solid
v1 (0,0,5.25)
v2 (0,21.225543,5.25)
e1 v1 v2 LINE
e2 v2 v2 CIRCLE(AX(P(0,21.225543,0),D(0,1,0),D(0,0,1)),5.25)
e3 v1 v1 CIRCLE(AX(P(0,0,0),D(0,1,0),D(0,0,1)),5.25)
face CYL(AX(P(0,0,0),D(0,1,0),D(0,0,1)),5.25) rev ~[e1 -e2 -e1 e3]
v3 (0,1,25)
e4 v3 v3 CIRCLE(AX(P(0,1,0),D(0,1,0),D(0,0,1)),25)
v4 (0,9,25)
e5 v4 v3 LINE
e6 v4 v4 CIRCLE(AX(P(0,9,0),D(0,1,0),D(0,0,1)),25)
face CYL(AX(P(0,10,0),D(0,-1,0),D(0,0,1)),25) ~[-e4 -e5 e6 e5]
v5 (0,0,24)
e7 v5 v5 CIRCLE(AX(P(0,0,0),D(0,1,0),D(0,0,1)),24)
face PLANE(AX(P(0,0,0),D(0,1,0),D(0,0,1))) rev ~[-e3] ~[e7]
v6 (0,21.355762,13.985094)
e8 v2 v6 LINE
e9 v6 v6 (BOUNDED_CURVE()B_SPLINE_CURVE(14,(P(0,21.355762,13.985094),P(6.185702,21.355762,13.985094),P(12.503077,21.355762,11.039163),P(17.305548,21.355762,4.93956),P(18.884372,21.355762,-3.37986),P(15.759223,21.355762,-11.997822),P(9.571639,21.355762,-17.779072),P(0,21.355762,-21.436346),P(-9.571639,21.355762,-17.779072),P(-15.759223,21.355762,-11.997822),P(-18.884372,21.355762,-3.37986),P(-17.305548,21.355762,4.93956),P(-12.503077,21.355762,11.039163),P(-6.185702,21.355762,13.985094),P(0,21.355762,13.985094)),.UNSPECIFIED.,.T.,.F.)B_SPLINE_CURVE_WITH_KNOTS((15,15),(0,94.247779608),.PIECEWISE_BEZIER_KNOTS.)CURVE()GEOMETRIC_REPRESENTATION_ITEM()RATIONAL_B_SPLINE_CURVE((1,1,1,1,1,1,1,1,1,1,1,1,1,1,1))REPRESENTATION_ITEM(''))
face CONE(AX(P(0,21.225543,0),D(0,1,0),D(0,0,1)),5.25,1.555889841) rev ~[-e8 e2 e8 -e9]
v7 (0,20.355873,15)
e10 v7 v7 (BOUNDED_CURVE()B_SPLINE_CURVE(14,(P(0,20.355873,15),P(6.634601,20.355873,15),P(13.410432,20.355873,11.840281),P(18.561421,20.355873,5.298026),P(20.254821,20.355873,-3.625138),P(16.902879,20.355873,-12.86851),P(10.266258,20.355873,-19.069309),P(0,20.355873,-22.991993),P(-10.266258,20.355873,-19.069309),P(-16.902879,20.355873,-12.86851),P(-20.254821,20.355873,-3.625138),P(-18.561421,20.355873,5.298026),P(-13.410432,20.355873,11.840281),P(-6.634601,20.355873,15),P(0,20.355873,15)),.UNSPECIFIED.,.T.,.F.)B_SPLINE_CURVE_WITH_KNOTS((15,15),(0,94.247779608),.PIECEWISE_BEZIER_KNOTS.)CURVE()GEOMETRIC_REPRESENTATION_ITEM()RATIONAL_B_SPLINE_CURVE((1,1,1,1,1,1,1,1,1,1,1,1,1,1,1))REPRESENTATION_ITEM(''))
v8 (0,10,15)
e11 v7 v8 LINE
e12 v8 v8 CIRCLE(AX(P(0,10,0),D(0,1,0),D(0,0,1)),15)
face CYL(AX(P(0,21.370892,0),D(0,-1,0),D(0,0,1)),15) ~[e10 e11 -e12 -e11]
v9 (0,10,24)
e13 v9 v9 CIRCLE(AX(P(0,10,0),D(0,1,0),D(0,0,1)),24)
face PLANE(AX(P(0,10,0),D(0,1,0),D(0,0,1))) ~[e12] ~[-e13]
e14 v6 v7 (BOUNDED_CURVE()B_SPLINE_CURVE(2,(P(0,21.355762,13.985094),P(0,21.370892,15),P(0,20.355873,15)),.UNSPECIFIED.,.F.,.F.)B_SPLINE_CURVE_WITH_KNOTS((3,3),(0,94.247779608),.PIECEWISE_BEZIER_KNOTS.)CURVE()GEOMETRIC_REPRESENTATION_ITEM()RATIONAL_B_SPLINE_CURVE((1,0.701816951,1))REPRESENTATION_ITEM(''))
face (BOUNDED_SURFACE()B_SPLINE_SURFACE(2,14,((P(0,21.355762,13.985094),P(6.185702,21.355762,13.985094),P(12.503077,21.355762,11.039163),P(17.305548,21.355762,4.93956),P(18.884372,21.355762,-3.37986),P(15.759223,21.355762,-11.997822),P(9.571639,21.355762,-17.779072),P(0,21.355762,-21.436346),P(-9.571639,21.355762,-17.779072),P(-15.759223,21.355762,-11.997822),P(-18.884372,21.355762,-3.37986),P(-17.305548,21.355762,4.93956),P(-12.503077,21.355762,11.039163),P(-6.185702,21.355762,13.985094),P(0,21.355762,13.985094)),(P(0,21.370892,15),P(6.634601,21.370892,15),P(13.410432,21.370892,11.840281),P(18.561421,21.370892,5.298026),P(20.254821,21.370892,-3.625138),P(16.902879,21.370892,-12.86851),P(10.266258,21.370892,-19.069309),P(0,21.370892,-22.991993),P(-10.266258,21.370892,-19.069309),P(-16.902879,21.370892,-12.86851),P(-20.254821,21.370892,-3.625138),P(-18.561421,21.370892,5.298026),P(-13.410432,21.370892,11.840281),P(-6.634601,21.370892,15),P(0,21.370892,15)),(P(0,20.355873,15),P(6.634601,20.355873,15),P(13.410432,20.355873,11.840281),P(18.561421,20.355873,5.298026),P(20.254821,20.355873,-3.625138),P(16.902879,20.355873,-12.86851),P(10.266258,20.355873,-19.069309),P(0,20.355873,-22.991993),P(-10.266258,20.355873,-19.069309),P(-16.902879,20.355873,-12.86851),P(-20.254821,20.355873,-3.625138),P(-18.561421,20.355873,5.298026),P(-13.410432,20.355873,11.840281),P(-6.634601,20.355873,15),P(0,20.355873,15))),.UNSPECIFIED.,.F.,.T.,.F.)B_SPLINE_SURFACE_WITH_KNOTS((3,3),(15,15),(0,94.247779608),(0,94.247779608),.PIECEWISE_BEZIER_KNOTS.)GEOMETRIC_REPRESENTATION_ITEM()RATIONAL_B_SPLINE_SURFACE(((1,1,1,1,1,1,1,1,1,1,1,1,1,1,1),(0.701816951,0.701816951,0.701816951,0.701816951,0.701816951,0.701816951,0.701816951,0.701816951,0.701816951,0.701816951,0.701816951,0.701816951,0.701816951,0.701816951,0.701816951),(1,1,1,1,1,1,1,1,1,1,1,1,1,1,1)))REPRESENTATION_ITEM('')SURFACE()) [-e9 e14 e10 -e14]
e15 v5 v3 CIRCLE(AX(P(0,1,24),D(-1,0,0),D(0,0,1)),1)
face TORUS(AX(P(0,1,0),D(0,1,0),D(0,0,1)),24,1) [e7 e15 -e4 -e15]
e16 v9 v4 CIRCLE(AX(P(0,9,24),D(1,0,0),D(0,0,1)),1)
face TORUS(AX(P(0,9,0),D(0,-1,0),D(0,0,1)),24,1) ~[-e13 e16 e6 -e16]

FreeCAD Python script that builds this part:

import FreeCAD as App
import Part
import Sketcher
from FreeCAD import Vector


def edges_at(feature, points):
    """Names of the edges that pass closest to the given points."""
    edges = feature.Shape.Edges
    near = lambda p: min(range(len(edges)), key=lambda i: edges[i].distToShape(Part.Vertex(*p))[0])
    return sorted({f"Edge{near(p) + 1}" for p in points})


def add_polygon(sketch, points):
    """Adds a closed chain of lines whose ends are joined by coincident constraints."""
    first, n = sketch.GeometryCount, len(points)
    for a, b in zip(points, points[1:] + points[:1]):
        sketch.addGeometry(Part.LineSegment(App.Vector(*a, 0), App.Vector(*b, 0)), False)
    for i in range(n):
        sketch.addConstraint(Sketcher.Constraint("Coincident", first + i, 2, first + (i + 1) % n, 1))

doc = App.newDocument("Part")
params = doc.addObject("Spreadsheet::Sheet", "Params")
for row, (alias, value) in enumerate([
    ("sketch1_width", "10 mm"),
    ("sketch1_height", "19.75 mm"),
    ("revolution_angle", "360 deg"),
    ("fillet_radius", "1 mm"),
], start=1):
    params.set(f"A{row}", alias)
    params.set(f"B{row}", "=" + value)
    params.setAlias(f"B{row}", alias)

body = doc.addObject("PartDesign::Body", "Body")

# Sketch on YZ plane
sketch1 = doc.addObject("Sketcher::SketchObject", "Sketch")
body.addObject(sketch1)
sketch1.AttachmentSupport = (doc.YZ_Plane, [""])
sketch1.MapMode = "FlatFace"
add_polygon(sketch1, [(0, 25), (0, 5), (21, 5), (21, 15), (10, 15), (10, 25)])  # lines 0-5
sketch1.addConstraint(Sketcher.Constraint("Vertical", 0))
sketch1.addConstraint(Sketcher.Constraint("Horizontal", 1))
sketch1.addConstraint(Sketcher.Constraint("Horizontal", 3))
sketch1.addConstraint(Sketcher.Constraint("Vertical", 4))
sketch1.addConstraint(Sketcher.Constraint("Horizontal", 5))
sketch1.addConstraint(Sketcher.Constraint("PointOnObject", 0, 2, -2))
sketch1.addConstraint(Sketcher.Constraint("Equal", 5, 4))
sketch1.addConstraint(Sketcher.Constraint("DistanceX", 5, 2, 5, 1, 10.0))
sketch1.addConstraint(Sketcher.Constraint("DistanceY", -1, 1, 2, 2, 15.0))
sketch1.addConstraint(Sketcher.Constraint("DistanceY", 0, 2, 0, 1, 19.75))
sketch1.addConstraint(Sketcher.Constraint("DistanceX", 1, 1, 1, 2, 21.225543))
sketch1.addConstraint(Sketcher.Constraint("DistanceX", 3, 2, 3, 1, 11.370892))
sketch1.setExpression("Constraints[13]", "Params.sketch1_width")
sketch1.setExpression("Constraints[15]", "Params.sketch1_height")
revolution = doc.addObject("PartDesign::Revolution", "Revolution")
body.addObject(revolution)
revolution.Profile = sketch1
revolution.ReferenceAxis = (sketch1, ["H_Axis"])
revolution.setExpression("Angle", "Params.revolution_angle")
doc.recompute()

fillet = doc.addObject("PartDesign::Fillet", "Fillet")
body.addObject(fillet)
fillet.Base = (revolution, edges_at(revolution, [(0, 0, -25), (0, 10, -25), (0, 21.371, -15)]))
fillet.setExpression("Radius", "Params.fillet_radius")

doc.recompute()
